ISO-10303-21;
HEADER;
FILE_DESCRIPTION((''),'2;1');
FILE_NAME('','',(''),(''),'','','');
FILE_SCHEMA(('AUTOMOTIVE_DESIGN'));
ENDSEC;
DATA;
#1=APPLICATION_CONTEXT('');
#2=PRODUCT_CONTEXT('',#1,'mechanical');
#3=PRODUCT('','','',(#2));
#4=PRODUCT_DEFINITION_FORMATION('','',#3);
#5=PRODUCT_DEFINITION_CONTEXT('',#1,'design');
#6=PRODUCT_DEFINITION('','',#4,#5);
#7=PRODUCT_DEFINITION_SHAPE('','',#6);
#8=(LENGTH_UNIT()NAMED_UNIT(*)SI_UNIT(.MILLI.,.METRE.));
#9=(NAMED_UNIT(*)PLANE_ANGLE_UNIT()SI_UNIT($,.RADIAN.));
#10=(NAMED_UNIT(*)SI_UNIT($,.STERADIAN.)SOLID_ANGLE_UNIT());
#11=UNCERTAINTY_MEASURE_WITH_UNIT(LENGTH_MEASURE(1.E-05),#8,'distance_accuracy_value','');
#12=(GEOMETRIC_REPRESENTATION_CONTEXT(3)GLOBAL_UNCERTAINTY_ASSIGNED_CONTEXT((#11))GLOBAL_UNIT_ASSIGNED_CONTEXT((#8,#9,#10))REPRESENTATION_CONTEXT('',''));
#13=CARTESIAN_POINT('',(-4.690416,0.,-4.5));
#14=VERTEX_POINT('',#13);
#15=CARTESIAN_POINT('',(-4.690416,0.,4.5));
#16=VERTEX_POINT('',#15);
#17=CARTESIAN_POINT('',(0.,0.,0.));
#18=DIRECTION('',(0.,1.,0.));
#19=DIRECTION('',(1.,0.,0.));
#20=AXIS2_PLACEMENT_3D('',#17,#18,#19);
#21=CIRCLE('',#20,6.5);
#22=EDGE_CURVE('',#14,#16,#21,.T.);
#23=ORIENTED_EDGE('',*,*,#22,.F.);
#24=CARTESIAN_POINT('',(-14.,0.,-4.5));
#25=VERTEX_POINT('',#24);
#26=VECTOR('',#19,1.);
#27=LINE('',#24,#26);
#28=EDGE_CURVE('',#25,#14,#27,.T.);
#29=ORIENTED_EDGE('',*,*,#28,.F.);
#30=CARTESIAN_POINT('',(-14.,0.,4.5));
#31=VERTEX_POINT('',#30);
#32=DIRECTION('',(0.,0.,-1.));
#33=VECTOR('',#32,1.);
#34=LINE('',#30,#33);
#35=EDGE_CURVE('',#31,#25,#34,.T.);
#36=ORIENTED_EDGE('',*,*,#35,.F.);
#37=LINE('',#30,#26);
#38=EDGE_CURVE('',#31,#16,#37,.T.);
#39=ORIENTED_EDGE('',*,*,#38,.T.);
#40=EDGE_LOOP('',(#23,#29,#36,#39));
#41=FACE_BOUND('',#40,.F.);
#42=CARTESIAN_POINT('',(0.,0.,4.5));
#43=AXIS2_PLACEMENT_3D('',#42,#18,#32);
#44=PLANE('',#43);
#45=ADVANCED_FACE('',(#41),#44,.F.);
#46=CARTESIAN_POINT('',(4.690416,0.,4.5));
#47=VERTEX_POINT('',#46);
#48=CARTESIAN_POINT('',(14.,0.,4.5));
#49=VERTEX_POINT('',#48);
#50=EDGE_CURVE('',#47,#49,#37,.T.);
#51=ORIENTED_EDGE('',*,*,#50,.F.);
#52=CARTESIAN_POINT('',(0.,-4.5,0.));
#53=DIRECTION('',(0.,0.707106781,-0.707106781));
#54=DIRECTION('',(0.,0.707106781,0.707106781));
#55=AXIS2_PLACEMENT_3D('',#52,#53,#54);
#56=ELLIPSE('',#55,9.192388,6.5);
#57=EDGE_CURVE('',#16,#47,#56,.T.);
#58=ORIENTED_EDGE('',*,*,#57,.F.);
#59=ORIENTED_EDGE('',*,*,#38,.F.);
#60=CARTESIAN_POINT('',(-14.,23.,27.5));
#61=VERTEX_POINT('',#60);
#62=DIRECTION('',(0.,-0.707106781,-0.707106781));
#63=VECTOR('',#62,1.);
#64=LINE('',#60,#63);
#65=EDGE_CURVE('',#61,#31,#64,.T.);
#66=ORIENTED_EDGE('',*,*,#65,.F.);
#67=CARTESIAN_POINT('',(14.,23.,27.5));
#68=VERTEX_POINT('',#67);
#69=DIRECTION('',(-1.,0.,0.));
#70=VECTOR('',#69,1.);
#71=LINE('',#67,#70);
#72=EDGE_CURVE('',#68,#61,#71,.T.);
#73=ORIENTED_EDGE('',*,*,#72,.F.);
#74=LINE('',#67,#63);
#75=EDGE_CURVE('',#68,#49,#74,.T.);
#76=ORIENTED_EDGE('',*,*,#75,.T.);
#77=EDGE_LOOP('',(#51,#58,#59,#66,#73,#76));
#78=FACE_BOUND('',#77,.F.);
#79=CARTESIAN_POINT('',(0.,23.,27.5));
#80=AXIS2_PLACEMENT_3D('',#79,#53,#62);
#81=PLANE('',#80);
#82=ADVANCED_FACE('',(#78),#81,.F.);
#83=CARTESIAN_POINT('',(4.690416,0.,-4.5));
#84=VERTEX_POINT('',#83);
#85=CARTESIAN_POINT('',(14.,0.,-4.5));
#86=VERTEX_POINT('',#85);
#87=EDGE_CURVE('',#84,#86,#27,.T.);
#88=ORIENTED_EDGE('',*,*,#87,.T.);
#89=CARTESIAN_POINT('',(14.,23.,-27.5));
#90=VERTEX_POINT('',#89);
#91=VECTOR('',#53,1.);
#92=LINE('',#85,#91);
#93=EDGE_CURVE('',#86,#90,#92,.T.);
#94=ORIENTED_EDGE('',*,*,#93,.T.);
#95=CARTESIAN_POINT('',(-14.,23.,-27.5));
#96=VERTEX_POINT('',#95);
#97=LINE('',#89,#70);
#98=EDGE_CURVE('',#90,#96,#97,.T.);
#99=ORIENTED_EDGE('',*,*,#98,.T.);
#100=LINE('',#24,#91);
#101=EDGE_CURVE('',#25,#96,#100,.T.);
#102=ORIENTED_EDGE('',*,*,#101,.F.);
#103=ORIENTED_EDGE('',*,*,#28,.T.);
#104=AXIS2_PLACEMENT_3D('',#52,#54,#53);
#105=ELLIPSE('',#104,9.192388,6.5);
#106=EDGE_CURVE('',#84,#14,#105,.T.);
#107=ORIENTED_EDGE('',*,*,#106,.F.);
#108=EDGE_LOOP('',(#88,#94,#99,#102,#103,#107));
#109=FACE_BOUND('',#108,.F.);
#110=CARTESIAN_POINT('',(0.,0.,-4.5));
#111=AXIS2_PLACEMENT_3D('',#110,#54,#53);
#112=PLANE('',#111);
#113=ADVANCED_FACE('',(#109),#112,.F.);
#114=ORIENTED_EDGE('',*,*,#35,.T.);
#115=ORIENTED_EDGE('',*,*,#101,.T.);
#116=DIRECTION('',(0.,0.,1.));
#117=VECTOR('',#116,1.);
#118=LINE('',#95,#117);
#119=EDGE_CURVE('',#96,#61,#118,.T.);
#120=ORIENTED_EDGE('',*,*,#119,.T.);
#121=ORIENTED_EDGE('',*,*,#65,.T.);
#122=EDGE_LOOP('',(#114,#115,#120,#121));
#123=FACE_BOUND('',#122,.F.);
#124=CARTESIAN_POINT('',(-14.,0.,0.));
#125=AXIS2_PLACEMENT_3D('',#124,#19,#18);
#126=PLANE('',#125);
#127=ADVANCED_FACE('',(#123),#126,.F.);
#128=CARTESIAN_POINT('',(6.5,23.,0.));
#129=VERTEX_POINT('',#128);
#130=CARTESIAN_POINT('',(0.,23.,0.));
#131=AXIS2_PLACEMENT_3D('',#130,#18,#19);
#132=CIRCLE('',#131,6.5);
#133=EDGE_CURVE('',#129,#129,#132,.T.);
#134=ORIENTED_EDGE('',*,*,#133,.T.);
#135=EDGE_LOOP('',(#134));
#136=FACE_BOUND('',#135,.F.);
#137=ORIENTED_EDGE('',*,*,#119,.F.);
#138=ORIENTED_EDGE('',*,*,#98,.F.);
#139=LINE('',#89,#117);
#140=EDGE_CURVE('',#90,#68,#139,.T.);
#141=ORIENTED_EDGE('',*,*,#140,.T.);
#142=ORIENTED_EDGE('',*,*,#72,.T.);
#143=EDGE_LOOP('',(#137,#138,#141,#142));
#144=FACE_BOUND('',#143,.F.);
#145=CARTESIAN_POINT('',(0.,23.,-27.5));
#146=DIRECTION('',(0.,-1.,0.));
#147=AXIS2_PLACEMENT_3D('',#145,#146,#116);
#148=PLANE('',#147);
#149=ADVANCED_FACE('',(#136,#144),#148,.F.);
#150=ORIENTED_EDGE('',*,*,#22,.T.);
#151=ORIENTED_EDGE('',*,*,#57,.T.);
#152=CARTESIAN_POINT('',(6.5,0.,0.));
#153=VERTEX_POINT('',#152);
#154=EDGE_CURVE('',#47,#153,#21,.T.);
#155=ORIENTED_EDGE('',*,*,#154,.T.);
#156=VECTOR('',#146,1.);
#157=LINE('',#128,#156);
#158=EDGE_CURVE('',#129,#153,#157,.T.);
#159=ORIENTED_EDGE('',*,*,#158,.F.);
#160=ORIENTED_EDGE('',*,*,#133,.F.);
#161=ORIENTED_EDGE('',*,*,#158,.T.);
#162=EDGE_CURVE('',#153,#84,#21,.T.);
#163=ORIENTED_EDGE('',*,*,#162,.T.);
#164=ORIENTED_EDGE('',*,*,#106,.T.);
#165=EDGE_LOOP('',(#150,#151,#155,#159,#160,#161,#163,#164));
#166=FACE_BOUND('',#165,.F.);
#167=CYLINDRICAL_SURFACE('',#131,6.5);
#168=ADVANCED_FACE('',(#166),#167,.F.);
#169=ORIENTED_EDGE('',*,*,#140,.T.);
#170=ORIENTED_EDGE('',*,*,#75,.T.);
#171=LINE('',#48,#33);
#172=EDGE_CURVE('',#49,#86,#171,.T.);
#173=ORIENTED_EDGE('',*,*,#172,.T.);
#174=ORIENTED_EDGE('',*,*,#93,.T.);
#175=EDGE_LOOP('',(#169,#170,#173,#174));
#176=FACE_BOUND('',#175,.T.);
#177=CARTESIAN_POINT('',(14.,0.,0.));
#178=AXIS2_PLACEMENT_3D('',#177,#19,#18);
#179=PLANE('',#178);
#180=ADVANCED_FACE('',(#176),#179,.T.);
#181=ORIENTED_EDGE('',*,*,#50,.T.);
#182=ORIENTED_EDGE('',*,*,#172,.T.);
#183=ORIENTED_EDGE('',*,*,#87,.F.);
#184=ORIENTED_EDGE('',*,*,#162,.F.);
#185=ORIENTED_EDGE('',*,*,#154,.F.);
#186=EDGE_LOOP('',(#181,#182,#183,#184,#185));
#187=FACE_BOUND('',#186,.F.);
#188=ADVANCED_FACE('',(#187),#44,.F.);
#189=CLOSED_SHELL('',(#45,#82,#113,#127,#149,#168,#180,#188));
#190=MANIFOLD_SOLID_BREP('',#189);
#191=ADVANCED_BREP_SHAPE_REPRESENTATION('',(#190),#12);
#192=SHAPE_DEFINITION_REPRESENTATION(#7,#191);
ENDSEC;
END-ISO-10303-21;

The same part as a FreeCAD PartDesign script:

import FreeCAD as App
import Part
import Sketcher
from FreeCAD import Vector
Q = App.Units.Quantity


def add_polygon(sketch, points):
    """Adds a closed chain of lines whose ends are joined by coincident constraints."""
    first, n = sketch.GeometryCount, len(points)
    for a, b in zip(points, points[1:] + points[:1]):
        sketch.addGeometry(Part.LineSegment(App.Vector(*a, 0), App.Vector(*b, 0)), False)
    for i in range(n):
        sketch.addConstraint(Sketcher.Constraint("Coincident", first + i, 2, first + (i + 1) % n, 1))

doc = App.newDocument("Part")
body = doc.addObject("PartDesign::Body", "Body")

# Sketch on YZ plane
sketch1 = doc.addObject("Sketcher::SketchObject", "Sketch")
body.addObject(sketch1)
sketch1.AttachmentSupport = (doc.YZ_Plane, [""])
sketch1.MapMode = "FlatFace"
add_polygon(sketch1, [(23, 28), (0, 4), (0, -4), (23, -28)])  # lines 0-3
sketch1.addConstraint(Sketcher.Constraint("Vertical", 1))
sketch1.addConstraint(Sketcher.Constraint("Vertical", 3))
sketch1.addConstraint(Sketcher.Constraint("Symmetric", 0, 2, 1, 2, -1, 1))
sketch1.addConstraint(Sketcher.Constraint("Perpendicular", 0, 2))
sketch1.addConstraint(Sketcher.Constraint("Equal", 0, 2))
sketch1.addConstraint(Sketcher.Constraint("DistanceY", 3, 1, 3, 2, Q("55 mm")))
sketch1.addConstraint(Sketcher.Constraint("DistanceX", -1, 1, 2, 2, Q("23 mm")))
pad1 = doc.addObject("PartDesign::Pad", "Pad")
body.addObject(pad1)
pad1.Profile = sketch1
pad1.Length = 28
pad1.Midplane = True

# Sketch on XZ plane
sketch2 = doc.addObject("Sketcher::SketchObject", "Sketch001")
body.addObject(sketch2)
sketch2.AttachmentSupport = (doc.XZ_Plane, [""])
sketch2.MapMode = "FlatFace"
sketch2.AttachmentOffset = App.Placement(Vector(0, 0, -23), App.Rotation())
sketch2.addGeometry(Part.Circle(Vector(0, 0, 0), Vector(0, 0, 1), 6), False)
sketch2.addConstraint(Sketcher.Constraint("Coincident", 0, 3, -1, 1))
sketch2.addConstraint(Sketcher.Constraint("Diameter", 0, Q("13 mm")))
pocket1 = doc.addObject("PartDesign::Pocket", "Pocket")
body.addObject(pocket1)
pocket1.Profile = sketch2
pocket1.Type = "ThroughAll"
pocket1.Reversed = True

doc.recompute()
